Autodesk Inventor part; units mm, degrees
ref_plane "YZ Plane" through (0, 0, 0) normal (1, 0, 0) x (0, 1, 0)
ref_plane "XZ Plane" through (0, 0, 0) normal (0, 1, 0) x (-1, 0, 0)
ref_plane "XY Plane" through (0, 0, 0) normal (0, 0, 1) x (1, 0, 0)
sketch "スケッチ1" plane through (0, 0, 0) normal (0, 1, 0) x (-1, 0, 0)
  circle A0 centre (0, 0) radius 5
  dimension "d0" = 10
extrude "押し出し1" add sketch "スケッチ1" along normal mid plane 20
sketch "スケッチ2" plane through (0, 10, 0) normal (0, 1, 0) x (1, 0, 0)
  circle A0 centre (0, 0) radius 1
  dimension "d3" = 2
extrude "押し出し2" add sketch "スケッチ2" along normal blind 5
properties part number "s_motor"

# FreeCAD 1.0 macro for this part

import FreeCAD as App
import Part
import Sketcher
from FreeCAD import Vector

doc = App.newDocument("Part")
body = doc.addObject("PartDesign::Body", "Body")

# Sketch on XZ plane
sketch1 = body.newObject("Sketcher::SketchObject", "Sketch")
sketch1.AttachmentSupport = (doc.getObject("XZ_Plane"), [""])
sketch1.MapMode = "FlatFace"
sketch1.addGeometry(Part.Circle(Vector(0, 0, 0), Vector(0, 0, 1), 5), False)
sketch1.addConstraint([
    Sketcher.Constraint("Coincident", 0, 3, -1, 1),
    Sketcher.Constraint("Diameter", 0, 10.0),
])
pad1 = body.newObject("PartDesign::Pad", "Pad")
pad1.Profile = sketch1
pad1.Length = 20
pad1.Midplane = True

# Sketch on XZ plane
sketch2 = body.newObject("Sketcher::SketchObject", "Sketch001")
sketch2.AttachmentSupport = (doc.getObject("XZ_Plane"), [""])
sketch2.MapMode = "FlatFace"
sketch2.AttachmentOffset = App.Placement(Vector(0, 0, -10), App.Rotation())
sketch2.addGeometry(Part.Circle(Vector(0, 0, 0), Vector(0, 0, 1), 1), False)
sketch2.addConstraint([
    Sketcher.Constraint("Coincident", 0, 3, -1, 1),
    Sketcher.Constraint("Diameter", 0, 2.0),
])
pad2 = body.newObject("PartDesign::Pad", "Pad001")
pad2.Profile = sketch2
pad2.Length = 5
pad2.Reversed = True

doc.recompute()
